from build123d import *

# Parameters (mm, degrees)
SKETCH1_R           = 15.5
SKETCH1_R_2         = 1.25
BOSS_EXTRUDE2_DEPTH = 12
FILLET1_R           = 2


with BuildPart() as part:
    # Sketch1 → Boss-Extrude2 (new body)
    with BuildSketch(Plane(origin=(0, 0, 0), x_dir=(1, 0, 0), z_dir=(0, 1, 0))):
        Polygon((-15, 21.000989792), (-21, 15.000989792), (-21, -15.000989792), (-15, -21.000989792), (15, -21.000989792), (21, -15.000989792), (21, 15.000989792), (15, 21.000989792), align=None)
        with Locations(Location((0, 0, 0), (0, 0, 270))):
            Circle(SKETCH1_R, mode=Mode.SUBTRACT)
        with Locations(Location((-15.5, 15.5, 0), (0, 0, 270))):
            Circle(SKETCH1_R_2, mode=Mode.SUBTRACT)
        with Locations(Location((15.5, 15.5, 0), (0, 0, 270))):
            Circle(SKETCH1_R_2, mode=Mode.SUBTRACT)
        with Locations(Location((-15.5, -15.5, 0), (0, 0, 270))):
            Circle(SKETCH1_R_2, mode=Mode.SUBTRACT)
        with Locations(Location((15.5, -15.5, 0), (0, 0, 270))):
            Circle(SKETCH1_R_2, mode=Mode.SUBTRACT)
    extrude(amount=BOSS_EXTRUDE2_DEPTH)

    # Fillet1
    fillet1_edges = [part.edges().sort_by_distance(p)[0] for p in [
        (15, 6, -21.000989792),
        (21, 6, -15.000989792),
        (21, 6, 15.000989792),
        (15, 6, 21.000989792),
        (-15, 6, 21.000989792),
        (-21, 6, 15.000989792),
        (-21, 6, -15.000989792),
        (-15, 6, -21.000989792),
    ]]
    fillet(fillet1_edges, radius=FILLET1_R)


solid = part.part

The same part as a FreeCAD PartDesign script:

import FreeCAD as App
import Part
import Sketcher
Q = App.Units.Quantity


def edges_at(feature, points):
    """Names of the edges that pass closest to the given points."""
    edges = feature.Shape.Edges
    near = lambda p: min(range(len(edges)), key=lambda i: edges[i].distToShape(Part.Vertex(*p))[0])
    return sorted({f"Edge{near(p) + 1}" for p in points})


def add_polygon(sketch, points):
    """Adds a closed chain of lines whose ends are joined by coincident constraints."""
    first, n = sketch.GeometryCount, len(points)
    for a, b in zip(points, points[1:] + points[:1]):
        sketch.addGeometry(Part.LineSegment(App.Vector(*a, 0), App.Vector(*b, 0)), False)
    for i in range(n):
        sketch.addConstraint(Sketcher.Constraint("Coincident", first + i, 2, first + (i + 1) % n, 1))

doc = App.newDocument("Part")
body = doc.addObject("PartDesign::Body", "Body")

# Sketch on XZ plane
sketch1 = body.newObject("Sketcher::SketchObject", "Sketch")
sketch1.AttachmentSupport = (doc.getObject("XZ_Plane"), [""])
sketch1.MapMode = "FlatFace"
add_polygon(sketch1, [(-15, -21), (-21, -15), (-21, 15), (-15, 21), (15, 21), (21, 15), (21, -15), (15, -21)])  # lines 0-7
sketch1.addGeometry(Part.Circle(App.Vector(-15.5, 15.5, 0), App.Vector(0, 0, 1), 1.2), False)  # 8
sketch1.addGeometry(Part.Circle(App.Vector(15.5, 15.5, 0), App.Vector(0, 0, 1), 1.2), False)  # 9
sketch1.addGeometry(Part.Circle(App.Vector(-15.5, -15.5, 0), App.Vector(0, 0, 1), 1.2), False)  # 10
sketch1.addGeometry(Part.Circle(App.Vector(0, 0, 0), App.Vector(0, 0, 1), 15.5), False)  # 11
sketch1.addGeometry(Part.Circle(App.Vector(15.5, -15.5, 0), App.Vector(0, 0, 1), 1.2), False)  # 12
sketch1.addConstraint(Sketcher.Constraint("Vertical", 1))
sketch1.addConstraint(Sketcher.Constraint("Horizontal", 3))
sketch1.addConstraint(Sketcher.Constraint("Vertical", 5))
sketch1.addConstraint(Sketcher.Constraint("Horizontal", 7))
sketch1.addConstraint(Sketcher.Constraint("Coincident", 11, 3, -1, 1))
sketch1.addConstraint(Sketcher.Constraint("Equal", 8, 9))
sketch1.addConstraint(Sketcher.Constraint("Equal", 9, 10))
sketch1.addConstraint(Sketcher.Constraint("Equal", 10, 12))
sketch1.addConstraint(Sketcher.Constraint("Symmetric", 9, 3, 10, 3, -1, 1))
sketch1.addConstraint(Sketcher.Constraint("Symmetric", 8, 3, 12, 3, -1, 1))
sketch1.addConstraint(Sketcher.Constraint("Symmetric", 0, 2, 4, 2, -1, 1))
sketch1.addConstraint(Sketcher.Constraint("Symmetric", 2, 2, 6, 2, -1, 1))
sketch1.addConstraint(Sketcher.Constraint("Symmetric", 8, 3, 9, 3, -2))
sketch1.addConstraint(Sketcher.Constraint("Perpendicular", 0, 2))
sketch1.addConstraint(Sketcher.Constraint("Perpendicular", 2, 4))
sketch1.addConstraint(Sketcher.Constraint("Perpendicular", 4, 6))
sketch1.addConstraint(Sketcher.Constraint("Horizontal", 1, 2, 4, 2))
sketch1.addConstraint(Sketcher.Constraint("Vertical", 3, 2, 6, 2))
sketch1.addConstraint(Sketcher.Constraint("Diameter", 11, Q("31 mm")))
sketch1.addConstraint(Sketcher.Constraint("Diameter", 8, Q("2.5 mm")))
sketch1.addConstraint(Sketcher.Constraint("DistanceX", 3, 1, 3, 2, Q("30 mm")))
sketch1.addConstraint(Sketcher.Constraint("DistanceX", 0, 2, -1, 1, Q("21 mm")))
sketch1.addConstraint(Sketcher.Constraint("DistanceX", 8, 3, 9, 3, Q("31 mm")))
sketch1.addConstraint(Sketcher.Constraint("DistanceY", 10, 3, 8, 3, Q("31 mm")))
sketch1.addConstraint(Sketcher.Constraint("DistanceY", 1, 1, 1, 2, Q("30.00198 mm")))
pad1 = body.newObject("PartDesign::Pad", "Pad")
pad1.Profile = sketch1
pad1.Length = 12
pad1.Reversed = True
doc.recompute()

fillet = body.newObject("PartDesign::Fillet", "Fillet")
fillet.Base = (pad1, edges_at(pad1, [
    (15, 6, -21.001),
    (21, 6, -15.001),
    (21, 6, 15.001),
    (15, 6, 21.001),
    (-15, 6, 21.001),
    (-21, 6, 15.001),
    (-21, 6, -15.001),
    (-15, 6, -21.001),
]))
fillet.Radius = 2

doc.recompute()
